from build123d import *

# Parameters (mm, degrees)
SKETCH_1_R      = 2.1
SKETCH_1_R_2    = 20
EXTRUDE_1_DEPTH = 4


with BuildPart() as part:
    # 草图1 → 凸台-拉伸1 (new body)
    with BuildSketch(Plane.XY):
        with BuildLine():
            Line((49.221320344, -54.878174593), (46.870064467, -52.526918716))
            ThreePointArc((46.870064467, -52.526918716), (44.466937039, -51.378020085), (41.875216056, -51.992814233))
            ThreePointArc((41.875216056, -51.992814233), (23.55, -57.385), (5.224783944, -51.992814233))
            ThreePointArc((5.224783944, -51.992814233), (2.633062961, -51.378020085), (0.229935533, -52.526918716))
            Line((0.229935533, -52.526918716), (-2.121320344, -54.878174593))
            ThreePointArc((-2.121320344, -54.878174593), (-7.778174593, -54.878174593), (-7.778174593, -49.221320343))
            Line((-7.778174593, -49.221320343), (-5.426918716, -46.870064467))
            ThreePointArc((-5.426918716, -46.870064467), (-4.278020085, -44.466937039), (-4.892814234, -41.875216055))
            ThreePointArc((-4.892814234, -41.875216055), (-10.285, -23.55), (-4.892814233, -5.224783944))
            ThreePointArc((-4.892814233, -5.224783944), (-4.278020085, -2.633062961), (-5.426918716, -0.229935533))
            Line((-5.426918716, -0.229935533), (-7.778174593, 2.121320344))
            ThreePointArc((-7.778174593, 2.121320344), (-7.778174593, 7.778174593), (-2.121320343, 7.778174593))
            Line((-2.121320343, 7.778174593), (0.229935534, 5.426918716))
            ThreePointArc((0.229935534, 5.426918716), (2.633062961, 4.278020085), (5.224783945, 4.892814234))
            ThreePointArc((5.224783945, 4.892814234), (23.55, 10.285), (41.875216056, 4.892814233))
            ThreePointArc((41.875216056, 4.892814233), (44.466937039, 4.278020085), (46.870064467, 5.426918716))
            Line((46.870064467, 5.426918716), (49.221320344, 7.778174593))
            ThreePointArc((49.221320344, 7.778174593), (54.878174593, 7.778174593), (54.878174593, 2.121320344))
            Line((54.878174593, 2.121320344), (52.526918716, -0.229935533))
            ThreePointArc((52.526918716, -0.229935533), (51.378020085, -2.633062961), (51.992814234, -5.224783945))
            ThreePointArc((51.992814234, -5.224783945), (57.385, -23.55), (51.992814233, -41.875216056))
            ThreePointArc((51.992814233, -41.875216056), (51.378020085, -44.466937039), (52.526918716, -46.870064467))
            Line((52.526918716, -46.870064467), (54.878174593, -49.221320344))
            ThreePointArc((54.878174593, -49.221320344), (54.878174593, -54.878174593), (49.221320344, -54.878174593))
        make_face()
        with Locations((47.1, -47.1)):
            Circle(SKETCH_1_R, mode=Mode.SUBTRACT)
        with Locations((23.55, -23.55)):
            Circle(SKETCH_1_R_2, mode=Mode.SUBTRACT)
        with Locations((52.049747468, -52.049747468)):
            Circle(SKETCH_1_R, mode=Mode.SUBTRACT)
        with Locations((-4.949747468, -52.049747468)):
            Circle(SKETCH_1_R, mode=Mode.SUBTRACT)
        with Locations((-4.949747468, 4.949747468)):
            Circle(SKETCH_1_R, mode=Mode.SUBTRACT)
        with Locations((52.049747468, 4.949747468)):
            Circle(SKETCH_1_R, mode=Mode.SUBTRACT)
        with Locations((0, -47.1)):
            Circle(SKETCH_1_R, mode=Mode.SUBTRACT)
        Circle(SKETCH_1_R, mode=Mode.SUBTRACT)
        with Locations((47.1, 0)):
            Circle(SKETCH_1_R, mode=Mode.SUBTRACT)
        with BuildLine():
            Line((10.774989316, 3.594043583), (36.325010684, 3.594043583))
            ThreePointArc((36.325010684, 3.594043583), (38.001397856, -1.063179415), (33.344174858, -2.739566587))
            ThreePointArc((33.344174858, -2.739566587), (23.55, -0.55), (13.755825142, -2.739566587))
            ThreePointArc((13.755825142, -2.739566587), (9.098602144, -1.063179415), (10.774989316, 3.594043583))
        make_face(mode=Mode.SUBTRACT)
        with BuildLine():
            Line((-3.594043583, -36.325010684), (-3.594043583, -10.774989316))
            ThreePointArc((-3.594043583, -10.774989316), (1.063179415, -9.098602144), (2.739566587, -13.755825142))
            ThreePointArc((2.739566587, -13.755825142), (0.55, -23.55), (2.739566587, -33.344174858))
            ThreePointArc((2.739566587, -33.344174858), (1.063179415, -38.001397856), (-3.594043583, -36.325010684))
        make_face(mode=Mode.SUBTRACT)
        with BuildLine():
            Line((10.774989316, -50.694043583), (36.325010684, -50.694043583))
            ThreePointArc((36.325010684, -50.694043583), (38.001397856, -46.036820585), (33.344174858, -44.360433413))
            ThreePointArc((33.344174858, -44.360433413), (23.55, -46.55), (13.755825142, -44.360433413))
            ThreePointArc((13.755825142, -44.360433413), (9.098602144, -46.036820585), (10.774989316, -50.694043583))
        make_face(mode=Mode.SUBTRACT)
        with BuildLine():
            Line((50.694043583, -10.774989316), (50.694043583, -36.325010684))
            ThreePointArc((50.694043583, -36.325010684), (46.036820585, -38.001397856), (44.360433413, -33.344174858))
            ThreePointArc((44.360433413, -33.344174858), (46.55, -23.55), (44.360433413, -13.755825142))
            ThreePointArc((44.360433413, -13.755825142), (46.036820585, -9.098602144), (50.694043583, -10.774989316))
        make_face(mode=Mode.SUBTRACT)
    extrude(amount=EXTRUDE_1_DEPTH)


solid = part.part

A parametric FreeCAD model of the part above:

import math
import FreeCAD as App
import Part
import Sketcher
Q = App.Units.Quantity

doc = App.newDocument("Part")
params = doc.addObject("Spreadsheet::Sheet", "Params")
for row, (alias, value) in enumerate([
    ("sketch1_diameter", "40 mm"),
    ("sketch1_radius", "4 mm"),
    ("sketch1_radius2", "23 mm"),
    ("sketch1_diameter2", "4.2 mm"),
    ("sketch1_radius3", "3.5 mm"),
    ("pad1_length", "4 mm"),
], start=1):
    params.set(f"A{row}", alias)
    params.set(f"B{row}", "=" + value)
    params.setAlias(f"B{row}", alias)

body = doc.addObject("PartDesign::Body", "Body")

# Sketch on XY plane
sketch1 = body.newObject("Sketcher::SketchObject", "Sketch")
sketch1.AttachmentSupport = (doc.getObject("XY_Plane"), [""])
sketch1.MapMode = "FlatFace"
sketch1.addGeometry([
    Part.LineSegment(App.Vector(46.9, -52.5, 0), App.Vector(49.2, -54.9, 0)),  # 0
    Part.ArcOfCircle(Part.Circle(App.Vector(52, -52, 0), App.Vector(0, 0, 1), 4), math.radians(-135), math.radians(45)),  # 1
    Part.LineSegment(App.Vector(54.9, -49.2, 0), App.Vector(52.5, -46.9, 0)),  # 2
    Part.ArcOfCircle(Part.Circle(App.Vector(55.4, -44, 0), App.Vector(0, 0, 1), 4), math.radians(147), math.radians(225)),  # 3
    Part.ArcOfCircle(Part.Circle(App.Vector(23.6, -23.6, 0), App.Vector(0, 0, 1), 33.8), math.radians(-33), math.radians(33)),  # 4
    Part.ArcOfCircle(Part.Circle(App.Vector(55.4, -3.1, 0), App.Vector(0, 0, 1), 4), math.radians(135), math.radians(213)),  # 5
    Part.LineSegment(App.Vector(52.5, -0.2, 0), App.Vector(54.9, 2.1, 0)),  # 6
    Part.ArcOfCircle(Part.Circle(App.Vector(52, 4.9, 0), App.Vector(0, 0, 1), 4), math.radians(-45), math.radians(135)),  # 7
    Part.LineSegment(App.Vector(49.2, 7.8, 0), App.Vector(46.9, 5.4, 0)),  # 8
    Part.ArcOfCircle(Part.Circle(App.Vector(44, 8.3, 0), App.Vector(0, 0, 1), 4), math.radians(-123), math.radians(-45)),  # 9
    Part.ArcOfCircle(Part.Circle(App.Vector(23.6, -23.6, 0), App.Vector(0, 0, 1), 33.8), math.radians(57), math.radians(123)),  # 10
    Part.ArcOfCircle(Part.Circle(App.Vector(3.1, 8.3, 0), App.Vector(0, 0, 1), 4), math.radians(-135), math.radians(-57)),  # 11
    Part.LineSegment(App.Vector(0.2, 5.4, 0), App.Vector(-2.1, 7.8, 0)),  # 12
    Part.ArcOfCircle(Part.Circle(App.Vector(-4.9, 4.9, 0), App.Vector(0, 0, 1), 4), math.radians(45), math.radians(225)),  # 13
    Part.LineSegment(App.Vector(-7.8, 2.1, 0), App.Vector(-5.4, -0.2, 0)),  # 14
    Part.ArcOfCircle(Part.Circle(App.Vector(-8.3, -3.1, 0), App.Vector(0, 0, 1), 4), math.radians(-33), math.radians(45)),  # 15
    Part.ArcOfCircle(Part.Circle(App.Vector(23.6, -23.6, 0), App.Vector(0, 0, 1), 33.8), math.radians(147), math.radians(213)),  # 16
    Part.ArcOfCircle(Part.Circle(App.Vector(-8.3, -44, 0), App.Vector(0, 0, 1), 4), math.radians(-45), math.radians(33)),  # 17
    Part.LineSegment(App.Vector(-5.4, -46.9, 0), App.Vector(-7.8, -49.2, 0)),  # 18
    Part.ArcOfCircle(Part.Circle(App.Vector(-4.9, -52, 0), App.Vector(0, 0, 1), 4), math.radians(135), math.radians(315)),  # 19
    Part.LineSegment(App.Vector(-2.1, -54.9, 0), App.Vector(0.2, -52.5, 0)),  # 20
    Part.ArcOfCircle(Part.Circle(App.Vector(3.1, -55.4, 0), App.Vector(0, 0, 1), 4), math.radians(57), math.radians(135)),  # 21
    Part.ArcOfCircle(Part.Circle(App.Vector(23.6, -23.6, 0), App.Vector(0, 0, 1), 33.8), math.radians(-123), math.radians(-57)),  # 22
    Part.ArcOfCircle(Part.Circle(App.Vector(44, -55.4, 0), App.Vector(0, 0, 1), 4), math.radians(45), math.radians(123)),  # 23
    Part.Circle(App.Vector(52, -52, 0), App.Vector(0, 0, 1), 2.1),  # 24
    Part.Circle(App.Vector(47.1, -47.1, 0), App.Vector(0, 0, 1), 2.1),  # 25
    Part.ArcOfCircle(Part.Circle(App.Vector(12.3, -47.5, 0), App.Vector(0, 0, 1), 3.5), math.radians(65), math.radians(245)),  # 26
    Part.ArcOfCircle(Part.Circle(App.Vector(23.6, -23.6, 0), App.Vector(0, 0, 1), 23), math.radians(-115), math.radians(-65)),  # 27
    Part.ArcOfCircle(Part.Circle(App.Vector(34.8, -47.5, 0), App.Vector(0, 0, 1), 3.5), math.radians(-65), math.radians(115)),  # 28
    Part.LineSegment(App.Vector(36.3, -50.7, 0), App.Vector(10.8, -50.7, 0)),  # 29
    Part.Circle(App.Vector(-4.9, -52, 0), App.Vector(0, 0, 1), 2.1),  # 30
    Part.Circle(App.Vector(0, -47.1, 0), App.Vector(0, 0, 1), 2.1),  # 31
    Part.LineSegment(App.Vector(50.7, -10.8, 0), App.Vector(50.7, -36.3, 0)),  # 32
    Part.ArcOfCircle(Part.Circle(App.Vector(47.5, -34.8, 0), App.Vector(0, 0, 1), 3.5), math.radians(155), math.radians(335)),  # 33
    Part.ArcOfCircle(Part.Circle(App.Vector(23.6, -23.6, 0), App.Vector(0, 0, 1), 23), math.radians(-25), math.radians(25)),  # 34
    Part.ArcOfCircle(Part.Circle(App.Vector(47.5, -12.3, 0), App.Vector(0, 0, 1), 3.5), math.radians(25), math.radians(205)),  # 35
    Part.Circle(App.Vector(47.1, 0, 0), App.Vector(0, 0, 1), 2.1),  # 36
    Part.Circle(App.Vector(52, 4.9, 0), App.Vector(0, 0, 1), 2.1),  # 37
    Part.Circle(App.Vector(23.6, -23.6, 0), App.Vector(0, 0, 1), 20),  # 38
    Part.LineSegment(App.Vector(-3.6, -36.3, 0), App.Vector(-3.6, -10.8, 0)),  # 39
    Part.ArcOfCircle(Part.Circle(App.Vector(-0.4, -12.3, 0), App.Vector(0, 0, 1), 3.5), math.radians(-25), math.radians(155)),  # 40
    Part.ArcOfCircle(Part.Circle(App.Vector(23.5, -23.6, 0), App.Vector(0, 0, 1), 23), math.radians(155), math.radians(205)),  # 41
    Part.ArcOfCircle(Part.Circle(App.Vector(-0.4, -34.8, 0), App.Vector(0, 0, 1), 3.5), math.radians(-155), math.radians(25)),  # 42
    Part.LineSegment(App.Vector(10.8, 3.6, 0), App.Vector(36.3, 3.6, 0)),  # 43
    Part.ArcOfCircle(Part.Circle(App.Vector(34.8, 0.4, 0), App.Vector(0, 0, 1), 3.5), math.radians(-115), math.radians(65)),  # 44
    Part.ArcOfCircle(Part.Circle(App.Vector(23.6, -23.5, 0), App.Vector(0, 0, 1), 23), math.radians(65), math.radians(115)),  # 45
    Part.ArcOfCircle(Part.Circle(App.Vector(12.3, 0.4, 0), App.Vector(0, 0, 1), 3.5), math.radians(115), math.radians(295)),  # 46
    Part.Circle(App.Vector(0, 0, 0), App.Vector(0, 0, 1), 2.1),  # 47
    Part.Circle(App.Vector(-4.9, 4.9, 0), App.Vector(0, 0, 1), 2.1),  # 48
], False)
sketch1.addConstraint([
    Sketcher.Constraint("Tangent", 0, 2, 1, 1),
    Sketcher.Constraint("Tangent", 1, 2, 2, 1),
    Sketcher.Constraint("Tangent", 2, 2, 3, 2),
    Sketcher.Constraint("Tangent", 3, 1, 4, 1),
    Sketcher.Constraint("Tangent", 4, 2, 5, 2),
    Sketcher.Constraint("Tangent", 5, 1, 6, 1),
    Sketcher.Constraint("Tangent", 6, 2, 7, 1),
    Sketcher.Constraint("Tangent", 7, 2, 8, 1),
    Sketcher.Constraint("Tangent", 8, 2, 9, 2),
    Sketcher.Constraint("Tangent", 9, 1, 10, 1),
    Sketcher.Constraint("Tangent", 10, 2, 11, 2),
    Sketcher.Constraint("Tangent", 11, 1, 12, 1),
    Sketcher.Constraint("Tangent", 12, 2, 13, 1),
    Sketcher.Constraint("Tangent", 13, 2, 14, 1),
    Sketcher.Constraint("Tangent", 14, 2, 15, 2),
    Sketcher.Constraint("Tangent", 15, 1, 16, 1),
    Sketcher.Constraint("Tangent", 16, 2, 17, 2),
    Sketcher.Constraint("Tangent", 17, 1, 18, 1),
    Sketcher.Constraint("Tangent", 18, 2, 19, 1),
    Sketcher.Constraint("Tangent", 19, 2, 20, 1),
    Sketcher.Constraint("Tangent", 20, 2, 21, 2),
    Sketcher.Constraint("Tangent", 21, 1, 22, 1),
    Sketcher.Constraint("Tangent", 22, 2, 23, 2),
    Sketcher.Constraint("Tangent", 23, 1, 0, 1),
    Sketcher.Constraint("Tangent", 26, 1, 27, 1),
    Sketcher.Constraint("Tangent", 27, 2, 28, 2),
    Sketcher.Constraint("Coincident", 28, 1, 29, 1),
    Sketcher.Constraint("Coincident", 29, 2, 26, 2),
    Sketcher.Constraint("Coincident", 32, 2, 33, 2),
    Sketcher.Constraint("Tangent", 33, 1, 34, 1),
    Sketcher.Constraint("Tangent", 34, 2, 35, 2),
    Sketcher.Constraint("Coincident", 35, 1, 32, 1),
    Sketcher.Constraint("Coincident", 39, 2, 40, 2),
    Sketcher.Constraint("Tangent", 40, 1, 41, 1),
    Sketcher.Constraint("Tangent", 41, 2, 42, 2),
    Sketcher.Constraint("Coincident", 42, 1, 39, 1),
    Sketcher.Constraint("Coincident", 43, 2, 44, 2),
    Sketcher.Constraint("Tangent", 44, 1, 45, 1),
    Sketcher.Constraint("Tangent", 45, 2, 46, 2),
    Sketcher.Constraint("Coincident", 46, 1, 43, 1),
    Sketcher.Constraint("Horizontal", 29),
    Sketcher.Constraint("Vertical", 32),
    Sketcher.Constraint("Vertical", 39),
    Sketcher.Constraint("Horizontal", 43),
    Sketcher.Constraint("Coincident", 47, 3, -1, 1),
    Sketcher.Constraint("Coincident", 10, 3, 4, 3),
    Sketcher.Constraint("Coincident", 16, 3, 4, 3),
    Sketcher.Constraint("Coincident", 22, 3, 4, 3),
    Sketcher.Constraint("Coincident", 24, 3, 1, 3),
    Sketcher.Constraint("Coincident", 27, 3, 4, 3),
    Sketcher.Constraint("Coincident", 30, 3, 19, 3),
    Sketcher.Constraint("Coincident", 34, 3, 4, 3),
    Sketcher.Constraint("Coincident", 37, 3, 7, 3),
    Sketcher.Constraint("Coincident", 38, 3, 4, 3),
    Sketcher.Constraint("Coincident", 41, 3, 4, 3),
    Sketcher.Constraint("Coincident", 45, 3, 4, 3),
    Sketcher.Constraint("Coincident", 48, 3, 13, 3),
    Sketcher.Constraint("Equal", 1, 3),
    Sketcher.Constraint("Equal", 3, 5),
    Sketcher.Constraint("Equal", 5, 7),
    Sketcher.Constraint("Equal", 7, 9),
    Sketcher.Constraint("Equal", 4, 10),
    Sketcher.Constraint("Equal", 9, 11),
    Sketcher.Constraint("Equal", 11, 13),
    Sketcher.Constraint("Equal", 13, 15),
    Sketcher.Constraint("Equal", 10, 16),
    Sketcher.Constraint("Equal", 15, 17),
    Sketcher.Constraint("Equal", 17, 19),
    Sketcher.Constraint("Equal", 19, 21),
    Sketcher.Constraint("Equal", 16, 22),
    Sketcher.Constraint("Equal", 21, 23),
    Sketcher.Constraint("Equal", 24, 25),
    Sketcher.Constraint("Equal", 26, 28),
    Sketcher.Constraint("Equal", 25, 30),
    Sketcher.Constraint("Equal", 30, 31),
    Sketcher.Constraint("Equal", 28, 33),
    Sketcher.Constraint("Equal", 27, 34),
    Sketcher.Constraint("Equal", 33, 35),
    Sketcher.Constraint("Equal", 31, 36),
    Sketcher.Constraint("Equal", 36, 37),
    Sketcher.Constraint("Equal", 35, 40),
    Sketcher.Constraint("Equal", 34, 41),
    Sketcher.Constraint("Equal", 40, 42),
    Sketcher.Constraint("Equal", 42, 44),
    Sketcher.Constraint("Equal", 41, 45),
    Sketcher.Constraint("Equal", 44, 46),
    Sketcher.Constraint("Equal", 37, 47),
    Sketcher.Constraint("Equal", 47, 48),
    Sketcher.Constraint("PointOnObject", 31, 3, -2),
    Sketcher.Constraint("PointOnObject", 36, 3, -1),
    Sketcher.Constraint("Parallel", 0, 2),
    Sketcher.Constraint("Perpendicular", 2, 6),
    Sketcher.Constraint("Parallel", 6, 8),
    Sketcher.Constraint("Perpendicular", 8, 12),
    Sketcher.Constraint("Parallel", 12, 14),
    Sketcher.Constraint("Perpendicular", 14, 18),
    Sketcher.Constraint("Parallel", 18, 20),
    Sketcher.Constraint("Horizontal", 9, 3, 11, 3),
    Sketcher.Constraint("Horizontal", 7, 3, 13, 3),
    Sketcher.Constraint("Horizontal", 3, 3, 17, 3),
    Sketcher.Constraint("Horizontal", 1, 3, 19, 3),
    Sketcher.Constraint("Horizontal", 26, 3, 28, 3),
    Sketcher.Constraint("Horizontal", 25, 3, 31, 3),
    Sketcher.Constraint("Horizontal", 35, 3, 40, 3),
    Sketcher.Constraint("Horizontal", 33, 3, 42, 3),
    Sketcher.Constraint("Horizontal", 44, 3, 46, 3),
    Sketcher.Constraint("Horizontal", 8, 2, 11, 1),
    Sketcher.Constraint("Horizontal", 35, 1, 39, 2),
    Sketcher.Constraint("Vertical", 3, 3, 5, 3),
    Sketcher.Constraint("Vertical", 1, 3, 7, 3),
    Sketcher.Constraint("Vertical", 33, 3, 35, 3),
    Sketcher.Constraint("Vertical", 25, 3, 36, 3),
    Sketcher.Constraint("Vertical", 28, 3, 44, 3),
    Sketcher.Constraint("Vertical", 28, 1, 43, 2),
    Sketcher.Constraint("Equal", 43, 32),
    Sketcher.Constraint("Equal", 0, 2),
    Sketcher.Constraint("Diameter", 38, Q("40 mm")),
    Sketcher.Constraint("Radius", 1, Q("4 mm")),
    Sketcher.Constraint("Radius", 27, Q("23 mm")),
    Sketcher.Constraint("Diameter", 24, Q("4.2 mm")),
    Sketcher.Constraint("Radius", 26, Q("3.5 mm")),
    Sketcher.Constraint("Radius", 4, Q("33.835 mm")),
    Sketcher.Constraint("DistanceX", -1, 1, 25, 3, Q("47.1 mm")),
    Sketcher.Constraint("DistanceY", 25, 3, -1, 1, Q("47.1 mm")),
    Sketcher.Constraint("DistanceX", -1, 1, 4, 3, Q("23.55 mm")),
    Sketcher.Constraint("DistanceY", 4, 3, -1, 1, Q("23.55 mm")),
    Sketcher.Constraint("DistanceX", 29, 2, 29, 1, Q("25.550021 mm")),
    Sketcher.Constraint("DistanceY", 26, 3, -1, 1, Q("47.527238 mm")),
    Sketcher.Constraint("DistanceX", -1, 1, 33, 3, Q("47.527238 mm")),
    Sketcher.Constraint("DistanceX", -1, 1, 0, 2, Q("49.22132 mm")),
])
sketch1.setExpression("Constraints[116]", "Params.sketch1_diameter")
sketch1.setExpression("Constraints[117]", "Params.sketch1_radius")
sketch1.setExpression("Constraints[118]", "Params.sketch1_radius2")
sketch1.setExpression("Constraints[119]", "Params.sketch1_diameter2")
sketch1.setExpression("Constraints[120]", "Params.sketch1_radius3")
pad1 = body.newObject("PartDesign::Pad", "Pad")
pad1.Profile = sketch1
pad1.setExpression("Length", "Params.pad1_length")

doc.recompute()
